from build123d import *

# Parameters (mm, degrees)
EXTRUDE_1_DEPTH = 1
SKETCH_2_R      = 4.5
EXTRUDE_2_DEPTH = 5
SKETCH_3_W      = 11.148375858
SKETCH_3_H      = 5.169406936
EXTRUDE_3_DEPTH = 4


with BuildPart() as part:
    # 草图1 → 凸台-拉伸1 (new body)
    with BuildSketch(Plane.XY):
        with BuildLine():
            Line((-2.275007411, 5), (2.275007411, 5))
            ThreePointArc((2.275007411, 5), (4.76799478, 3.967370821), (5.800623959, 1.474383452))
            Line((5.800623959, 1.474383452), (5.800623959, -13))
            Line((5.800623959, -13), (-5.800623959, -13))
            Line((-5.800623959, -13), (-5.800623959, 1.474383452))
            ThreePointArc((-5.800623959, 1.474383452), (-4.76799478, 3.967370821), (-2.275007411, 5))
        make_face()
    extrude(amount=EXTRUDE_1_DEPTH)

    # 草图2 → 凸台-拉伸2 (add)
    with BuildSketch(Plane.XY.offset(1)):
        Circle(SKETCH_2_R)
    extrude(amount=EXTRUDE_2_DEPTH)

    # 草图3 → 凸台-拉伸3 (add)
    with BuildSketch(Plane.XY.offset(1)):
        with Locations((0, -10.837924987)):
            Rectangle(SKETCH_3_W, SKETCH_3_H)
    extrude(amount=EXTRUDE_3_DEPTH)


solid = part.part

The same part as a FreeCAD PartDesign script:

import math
import FreeCAD as App
import Part
import Sketcher
from FreeCAD import Vector
Q = App.Units.Quantity


def add_polygon(sketch, points):
    """Adds a closed chain of lines whose ends are joined by coincident constraints."""
    first, n = sketch.GeometryCount, len(points)
    for a, b in zip(points, points[1:] + points[:1]):
        sketch.addGeometry(Part.LineSegment(App.Vector(*a, 0), App.Vector(*b, 0)), False)
    for i in range(n):
        sketch.addConstraint(Sketcher.Constraint("Coincident", first + i, 2, first + (i + 1) % n, 1))

doc = App.newDocument("Part")
params = doc.addObject("Spreadsheet::Sheet", "Params")
for row, (alias, value) in enumerate([
    ("pad1_length", "1 mm"),
    ("sketch2_diameter", "9 mm"),
    ("pad2_length", "5 mm"),
    ("pad3_length", "4 mm"),
], start=1):
    params.set(f"A{row}", alias)
    params.set(f"B{row}", "=" + value)
    params.setAlias(f"B{row}", alias)

body = doc.addObject("PartDesign::Body", "Body")

sketch1 = doc.addObject("Sketcher::SketchObject", "Sketch")
body.addObject(sketch1)
sketch1.AttachmentSupport = (doc.XY_Plane, [""])
sketch1.MapMode = "FlatFace"
sketch1.addGeometry(Part.LineSegment(Vector(2.3, 5, 0), Vector(-2.3, 5, 0)), False)
sketch1.addGeometry(Part.ArcOfCircle(Part.Circle(Vector(-2.3, 1.5, 0), Vector(0, 0, 1), 3.5), math.radians(90), math.radians(180)), False)
sketch1.addGeometry(Part.LineSegment(Vector(-5.8, 1.5, 0), Vector(-5.8, -13, 0)), False)
sketch1.addGeometry(Part.LineSegment(Vector(-5.8, -13, 0), Vector(5.8, -13, 0)), False)
sketch1.addGeometry(Part.LineSegment(Vector(5.8, -13, 0), Vector(5.8, 1.5, 0)), False)
sketch1.addGeometry(Part.ArcOfCircle(Part.Circle(Vector(2.3, 1.5, 0), Vector(0, 0, 1), 3.5), math.radians(0), math.radians(90)), False)
sketch1.addConstraint(Sketcher.Constraint("Tangent", 0, 2, 1, 1))
sketch1.addConstraint(Sketcher.Constraint("Tangent", 1, 2, 2, 1))
sketch1.addConstraint(Sketcher.Constraint("Coincident", 2, 2, 3, 1))
sketch1.addConstraint(Sketcher.Constraint("Coincident", 3, 2, 4, 1))
sketch1.addConstraint(Sketcher.Constraint("Tangent", 4, 2, 5, 1))
sketch1.addConstraint(Sketcher.Constraint("Tangent", 5, 2, 0, 1))
sketch1.addConstraint(Sketcher.Constraint("Horizontal", 0))
sketch1.addConstraint(Sketcher.Constraint("Vertical", 2))
sketch1.addConstraint(Sketcher.Constraint("Horizontal", 3))
sketch1.addConstraint(Sketcher.Constraint("Vertical", 4))
sketch1.addConstraint(Sketcher.Constraint("Equal", 1, 5))
sketch1.addConstraint(Sketcher.Constraint("DistanceY", -1, 1, 0, 2, Q("5 mm")))
sketch1.addConstraint(Sketcher.Constraint("DistanceY", 2, 2, -1, 1, Q("13 mm")))
sketch1.addConstraint(Sketcher.Constraint("Radius", 1, Q("3.525617 mm")))
sketch1.addConstraint(Sketcher.Constraint("DistanceX", 0, 2, 0, 1, Q("4.550015 mm")))
sketch1.addConstraint(Sketcher.Constraint("DistanceX", 1, 3, -1, 1, Q("2.275007 mm")))
pad1 = doc.addObject("PartDesign::Pad", "Pad")
body.addObject(pad1)
pad1.Profile = sketch1
pad1.setExpression("Length", "Params.pad1_length")

sketch2 = doc.addObject("Sketcher::SketchObject", "Sketch001")
body.addObject(sketch2)
sketch2.AttachmentSupport = (doc.XY_Plane, [""])
sketch2.MapMode = "FlatFace"
sketch2.AttachmentOffset = App.Placement(Vector(0, 0, 1), App.Rotation())
sketch2.addGeometry(Part.Circle(Vector(0, 0, 0), Vector(0, 0, 1), 4.5), False)
sketch2.addConstraint(Sketcher.Constraint("Coincident", 0, 3, -1, 1))
sketch2.addConstraint(Sketcher.Constraint("Diameter", 0, Q("9 mm")))
sketch2.setExpression("Constraints[1]", "Params.sketch2_diameter")
pad2 = doc.addObject("PartDesign::Pad", "Pad001")
body.addObject(pad2)
pad2.Profile = sketch2
pad2.setExpression("Length", "Params.pad2_length")

sketch3 = doc.addObject("Sketcher::SketchObject", "Sketch002")
body.addObject(sketch3)
sketch3.AttachmentSupport = (doc.XY_Plane, [""])
sketch3.MapMode = "FlatFace"
sketch3.AttachmentOffset = App.Placement(Vector(0, 0, 1), App.Rotation())
add_polygon(sketch3, [(-6, -8), (-6, -13), (6, -13), (6, -8)])
sketch3.addConstraint(Sketcher.Constraint("Vertical", 0))
sketch3.addConstraint(Sketcher.Constraint("Horizontal", 1))
sketch3.addConstraint(Sketcher.Constraint("Vertical", 2))
sketch3.addConstraint(Sketcher.Constraint("Horizontal", 3))
sketch3.addConstraint(Sketcher.Constraint("DistanceX", 1, 1, 1, 2, Q("11.148376 mm")))
sketch3.addConstraint(Sketcher.Constraint("DistanceY", 0, 2, 0, 1, Q("5.169407 mm")))
sketch3.addConstraint(Sketcher.Constraint("DistanceY", 0, 2, -1, 1, Q("13.422628 mm")))
sketch3.addConstraint(Sketcher.Constraint("DistanceX", 0, 2, -1, 1, Q("5.574188 mm")))
pad3 = doc.addObject("PartDesign::Pad", "Pad002")
body.addObject(pad3)
pad3.Profile = sketch3
pad3.setExpression("Length", "Params.pad3_length")

doc.recompute()
